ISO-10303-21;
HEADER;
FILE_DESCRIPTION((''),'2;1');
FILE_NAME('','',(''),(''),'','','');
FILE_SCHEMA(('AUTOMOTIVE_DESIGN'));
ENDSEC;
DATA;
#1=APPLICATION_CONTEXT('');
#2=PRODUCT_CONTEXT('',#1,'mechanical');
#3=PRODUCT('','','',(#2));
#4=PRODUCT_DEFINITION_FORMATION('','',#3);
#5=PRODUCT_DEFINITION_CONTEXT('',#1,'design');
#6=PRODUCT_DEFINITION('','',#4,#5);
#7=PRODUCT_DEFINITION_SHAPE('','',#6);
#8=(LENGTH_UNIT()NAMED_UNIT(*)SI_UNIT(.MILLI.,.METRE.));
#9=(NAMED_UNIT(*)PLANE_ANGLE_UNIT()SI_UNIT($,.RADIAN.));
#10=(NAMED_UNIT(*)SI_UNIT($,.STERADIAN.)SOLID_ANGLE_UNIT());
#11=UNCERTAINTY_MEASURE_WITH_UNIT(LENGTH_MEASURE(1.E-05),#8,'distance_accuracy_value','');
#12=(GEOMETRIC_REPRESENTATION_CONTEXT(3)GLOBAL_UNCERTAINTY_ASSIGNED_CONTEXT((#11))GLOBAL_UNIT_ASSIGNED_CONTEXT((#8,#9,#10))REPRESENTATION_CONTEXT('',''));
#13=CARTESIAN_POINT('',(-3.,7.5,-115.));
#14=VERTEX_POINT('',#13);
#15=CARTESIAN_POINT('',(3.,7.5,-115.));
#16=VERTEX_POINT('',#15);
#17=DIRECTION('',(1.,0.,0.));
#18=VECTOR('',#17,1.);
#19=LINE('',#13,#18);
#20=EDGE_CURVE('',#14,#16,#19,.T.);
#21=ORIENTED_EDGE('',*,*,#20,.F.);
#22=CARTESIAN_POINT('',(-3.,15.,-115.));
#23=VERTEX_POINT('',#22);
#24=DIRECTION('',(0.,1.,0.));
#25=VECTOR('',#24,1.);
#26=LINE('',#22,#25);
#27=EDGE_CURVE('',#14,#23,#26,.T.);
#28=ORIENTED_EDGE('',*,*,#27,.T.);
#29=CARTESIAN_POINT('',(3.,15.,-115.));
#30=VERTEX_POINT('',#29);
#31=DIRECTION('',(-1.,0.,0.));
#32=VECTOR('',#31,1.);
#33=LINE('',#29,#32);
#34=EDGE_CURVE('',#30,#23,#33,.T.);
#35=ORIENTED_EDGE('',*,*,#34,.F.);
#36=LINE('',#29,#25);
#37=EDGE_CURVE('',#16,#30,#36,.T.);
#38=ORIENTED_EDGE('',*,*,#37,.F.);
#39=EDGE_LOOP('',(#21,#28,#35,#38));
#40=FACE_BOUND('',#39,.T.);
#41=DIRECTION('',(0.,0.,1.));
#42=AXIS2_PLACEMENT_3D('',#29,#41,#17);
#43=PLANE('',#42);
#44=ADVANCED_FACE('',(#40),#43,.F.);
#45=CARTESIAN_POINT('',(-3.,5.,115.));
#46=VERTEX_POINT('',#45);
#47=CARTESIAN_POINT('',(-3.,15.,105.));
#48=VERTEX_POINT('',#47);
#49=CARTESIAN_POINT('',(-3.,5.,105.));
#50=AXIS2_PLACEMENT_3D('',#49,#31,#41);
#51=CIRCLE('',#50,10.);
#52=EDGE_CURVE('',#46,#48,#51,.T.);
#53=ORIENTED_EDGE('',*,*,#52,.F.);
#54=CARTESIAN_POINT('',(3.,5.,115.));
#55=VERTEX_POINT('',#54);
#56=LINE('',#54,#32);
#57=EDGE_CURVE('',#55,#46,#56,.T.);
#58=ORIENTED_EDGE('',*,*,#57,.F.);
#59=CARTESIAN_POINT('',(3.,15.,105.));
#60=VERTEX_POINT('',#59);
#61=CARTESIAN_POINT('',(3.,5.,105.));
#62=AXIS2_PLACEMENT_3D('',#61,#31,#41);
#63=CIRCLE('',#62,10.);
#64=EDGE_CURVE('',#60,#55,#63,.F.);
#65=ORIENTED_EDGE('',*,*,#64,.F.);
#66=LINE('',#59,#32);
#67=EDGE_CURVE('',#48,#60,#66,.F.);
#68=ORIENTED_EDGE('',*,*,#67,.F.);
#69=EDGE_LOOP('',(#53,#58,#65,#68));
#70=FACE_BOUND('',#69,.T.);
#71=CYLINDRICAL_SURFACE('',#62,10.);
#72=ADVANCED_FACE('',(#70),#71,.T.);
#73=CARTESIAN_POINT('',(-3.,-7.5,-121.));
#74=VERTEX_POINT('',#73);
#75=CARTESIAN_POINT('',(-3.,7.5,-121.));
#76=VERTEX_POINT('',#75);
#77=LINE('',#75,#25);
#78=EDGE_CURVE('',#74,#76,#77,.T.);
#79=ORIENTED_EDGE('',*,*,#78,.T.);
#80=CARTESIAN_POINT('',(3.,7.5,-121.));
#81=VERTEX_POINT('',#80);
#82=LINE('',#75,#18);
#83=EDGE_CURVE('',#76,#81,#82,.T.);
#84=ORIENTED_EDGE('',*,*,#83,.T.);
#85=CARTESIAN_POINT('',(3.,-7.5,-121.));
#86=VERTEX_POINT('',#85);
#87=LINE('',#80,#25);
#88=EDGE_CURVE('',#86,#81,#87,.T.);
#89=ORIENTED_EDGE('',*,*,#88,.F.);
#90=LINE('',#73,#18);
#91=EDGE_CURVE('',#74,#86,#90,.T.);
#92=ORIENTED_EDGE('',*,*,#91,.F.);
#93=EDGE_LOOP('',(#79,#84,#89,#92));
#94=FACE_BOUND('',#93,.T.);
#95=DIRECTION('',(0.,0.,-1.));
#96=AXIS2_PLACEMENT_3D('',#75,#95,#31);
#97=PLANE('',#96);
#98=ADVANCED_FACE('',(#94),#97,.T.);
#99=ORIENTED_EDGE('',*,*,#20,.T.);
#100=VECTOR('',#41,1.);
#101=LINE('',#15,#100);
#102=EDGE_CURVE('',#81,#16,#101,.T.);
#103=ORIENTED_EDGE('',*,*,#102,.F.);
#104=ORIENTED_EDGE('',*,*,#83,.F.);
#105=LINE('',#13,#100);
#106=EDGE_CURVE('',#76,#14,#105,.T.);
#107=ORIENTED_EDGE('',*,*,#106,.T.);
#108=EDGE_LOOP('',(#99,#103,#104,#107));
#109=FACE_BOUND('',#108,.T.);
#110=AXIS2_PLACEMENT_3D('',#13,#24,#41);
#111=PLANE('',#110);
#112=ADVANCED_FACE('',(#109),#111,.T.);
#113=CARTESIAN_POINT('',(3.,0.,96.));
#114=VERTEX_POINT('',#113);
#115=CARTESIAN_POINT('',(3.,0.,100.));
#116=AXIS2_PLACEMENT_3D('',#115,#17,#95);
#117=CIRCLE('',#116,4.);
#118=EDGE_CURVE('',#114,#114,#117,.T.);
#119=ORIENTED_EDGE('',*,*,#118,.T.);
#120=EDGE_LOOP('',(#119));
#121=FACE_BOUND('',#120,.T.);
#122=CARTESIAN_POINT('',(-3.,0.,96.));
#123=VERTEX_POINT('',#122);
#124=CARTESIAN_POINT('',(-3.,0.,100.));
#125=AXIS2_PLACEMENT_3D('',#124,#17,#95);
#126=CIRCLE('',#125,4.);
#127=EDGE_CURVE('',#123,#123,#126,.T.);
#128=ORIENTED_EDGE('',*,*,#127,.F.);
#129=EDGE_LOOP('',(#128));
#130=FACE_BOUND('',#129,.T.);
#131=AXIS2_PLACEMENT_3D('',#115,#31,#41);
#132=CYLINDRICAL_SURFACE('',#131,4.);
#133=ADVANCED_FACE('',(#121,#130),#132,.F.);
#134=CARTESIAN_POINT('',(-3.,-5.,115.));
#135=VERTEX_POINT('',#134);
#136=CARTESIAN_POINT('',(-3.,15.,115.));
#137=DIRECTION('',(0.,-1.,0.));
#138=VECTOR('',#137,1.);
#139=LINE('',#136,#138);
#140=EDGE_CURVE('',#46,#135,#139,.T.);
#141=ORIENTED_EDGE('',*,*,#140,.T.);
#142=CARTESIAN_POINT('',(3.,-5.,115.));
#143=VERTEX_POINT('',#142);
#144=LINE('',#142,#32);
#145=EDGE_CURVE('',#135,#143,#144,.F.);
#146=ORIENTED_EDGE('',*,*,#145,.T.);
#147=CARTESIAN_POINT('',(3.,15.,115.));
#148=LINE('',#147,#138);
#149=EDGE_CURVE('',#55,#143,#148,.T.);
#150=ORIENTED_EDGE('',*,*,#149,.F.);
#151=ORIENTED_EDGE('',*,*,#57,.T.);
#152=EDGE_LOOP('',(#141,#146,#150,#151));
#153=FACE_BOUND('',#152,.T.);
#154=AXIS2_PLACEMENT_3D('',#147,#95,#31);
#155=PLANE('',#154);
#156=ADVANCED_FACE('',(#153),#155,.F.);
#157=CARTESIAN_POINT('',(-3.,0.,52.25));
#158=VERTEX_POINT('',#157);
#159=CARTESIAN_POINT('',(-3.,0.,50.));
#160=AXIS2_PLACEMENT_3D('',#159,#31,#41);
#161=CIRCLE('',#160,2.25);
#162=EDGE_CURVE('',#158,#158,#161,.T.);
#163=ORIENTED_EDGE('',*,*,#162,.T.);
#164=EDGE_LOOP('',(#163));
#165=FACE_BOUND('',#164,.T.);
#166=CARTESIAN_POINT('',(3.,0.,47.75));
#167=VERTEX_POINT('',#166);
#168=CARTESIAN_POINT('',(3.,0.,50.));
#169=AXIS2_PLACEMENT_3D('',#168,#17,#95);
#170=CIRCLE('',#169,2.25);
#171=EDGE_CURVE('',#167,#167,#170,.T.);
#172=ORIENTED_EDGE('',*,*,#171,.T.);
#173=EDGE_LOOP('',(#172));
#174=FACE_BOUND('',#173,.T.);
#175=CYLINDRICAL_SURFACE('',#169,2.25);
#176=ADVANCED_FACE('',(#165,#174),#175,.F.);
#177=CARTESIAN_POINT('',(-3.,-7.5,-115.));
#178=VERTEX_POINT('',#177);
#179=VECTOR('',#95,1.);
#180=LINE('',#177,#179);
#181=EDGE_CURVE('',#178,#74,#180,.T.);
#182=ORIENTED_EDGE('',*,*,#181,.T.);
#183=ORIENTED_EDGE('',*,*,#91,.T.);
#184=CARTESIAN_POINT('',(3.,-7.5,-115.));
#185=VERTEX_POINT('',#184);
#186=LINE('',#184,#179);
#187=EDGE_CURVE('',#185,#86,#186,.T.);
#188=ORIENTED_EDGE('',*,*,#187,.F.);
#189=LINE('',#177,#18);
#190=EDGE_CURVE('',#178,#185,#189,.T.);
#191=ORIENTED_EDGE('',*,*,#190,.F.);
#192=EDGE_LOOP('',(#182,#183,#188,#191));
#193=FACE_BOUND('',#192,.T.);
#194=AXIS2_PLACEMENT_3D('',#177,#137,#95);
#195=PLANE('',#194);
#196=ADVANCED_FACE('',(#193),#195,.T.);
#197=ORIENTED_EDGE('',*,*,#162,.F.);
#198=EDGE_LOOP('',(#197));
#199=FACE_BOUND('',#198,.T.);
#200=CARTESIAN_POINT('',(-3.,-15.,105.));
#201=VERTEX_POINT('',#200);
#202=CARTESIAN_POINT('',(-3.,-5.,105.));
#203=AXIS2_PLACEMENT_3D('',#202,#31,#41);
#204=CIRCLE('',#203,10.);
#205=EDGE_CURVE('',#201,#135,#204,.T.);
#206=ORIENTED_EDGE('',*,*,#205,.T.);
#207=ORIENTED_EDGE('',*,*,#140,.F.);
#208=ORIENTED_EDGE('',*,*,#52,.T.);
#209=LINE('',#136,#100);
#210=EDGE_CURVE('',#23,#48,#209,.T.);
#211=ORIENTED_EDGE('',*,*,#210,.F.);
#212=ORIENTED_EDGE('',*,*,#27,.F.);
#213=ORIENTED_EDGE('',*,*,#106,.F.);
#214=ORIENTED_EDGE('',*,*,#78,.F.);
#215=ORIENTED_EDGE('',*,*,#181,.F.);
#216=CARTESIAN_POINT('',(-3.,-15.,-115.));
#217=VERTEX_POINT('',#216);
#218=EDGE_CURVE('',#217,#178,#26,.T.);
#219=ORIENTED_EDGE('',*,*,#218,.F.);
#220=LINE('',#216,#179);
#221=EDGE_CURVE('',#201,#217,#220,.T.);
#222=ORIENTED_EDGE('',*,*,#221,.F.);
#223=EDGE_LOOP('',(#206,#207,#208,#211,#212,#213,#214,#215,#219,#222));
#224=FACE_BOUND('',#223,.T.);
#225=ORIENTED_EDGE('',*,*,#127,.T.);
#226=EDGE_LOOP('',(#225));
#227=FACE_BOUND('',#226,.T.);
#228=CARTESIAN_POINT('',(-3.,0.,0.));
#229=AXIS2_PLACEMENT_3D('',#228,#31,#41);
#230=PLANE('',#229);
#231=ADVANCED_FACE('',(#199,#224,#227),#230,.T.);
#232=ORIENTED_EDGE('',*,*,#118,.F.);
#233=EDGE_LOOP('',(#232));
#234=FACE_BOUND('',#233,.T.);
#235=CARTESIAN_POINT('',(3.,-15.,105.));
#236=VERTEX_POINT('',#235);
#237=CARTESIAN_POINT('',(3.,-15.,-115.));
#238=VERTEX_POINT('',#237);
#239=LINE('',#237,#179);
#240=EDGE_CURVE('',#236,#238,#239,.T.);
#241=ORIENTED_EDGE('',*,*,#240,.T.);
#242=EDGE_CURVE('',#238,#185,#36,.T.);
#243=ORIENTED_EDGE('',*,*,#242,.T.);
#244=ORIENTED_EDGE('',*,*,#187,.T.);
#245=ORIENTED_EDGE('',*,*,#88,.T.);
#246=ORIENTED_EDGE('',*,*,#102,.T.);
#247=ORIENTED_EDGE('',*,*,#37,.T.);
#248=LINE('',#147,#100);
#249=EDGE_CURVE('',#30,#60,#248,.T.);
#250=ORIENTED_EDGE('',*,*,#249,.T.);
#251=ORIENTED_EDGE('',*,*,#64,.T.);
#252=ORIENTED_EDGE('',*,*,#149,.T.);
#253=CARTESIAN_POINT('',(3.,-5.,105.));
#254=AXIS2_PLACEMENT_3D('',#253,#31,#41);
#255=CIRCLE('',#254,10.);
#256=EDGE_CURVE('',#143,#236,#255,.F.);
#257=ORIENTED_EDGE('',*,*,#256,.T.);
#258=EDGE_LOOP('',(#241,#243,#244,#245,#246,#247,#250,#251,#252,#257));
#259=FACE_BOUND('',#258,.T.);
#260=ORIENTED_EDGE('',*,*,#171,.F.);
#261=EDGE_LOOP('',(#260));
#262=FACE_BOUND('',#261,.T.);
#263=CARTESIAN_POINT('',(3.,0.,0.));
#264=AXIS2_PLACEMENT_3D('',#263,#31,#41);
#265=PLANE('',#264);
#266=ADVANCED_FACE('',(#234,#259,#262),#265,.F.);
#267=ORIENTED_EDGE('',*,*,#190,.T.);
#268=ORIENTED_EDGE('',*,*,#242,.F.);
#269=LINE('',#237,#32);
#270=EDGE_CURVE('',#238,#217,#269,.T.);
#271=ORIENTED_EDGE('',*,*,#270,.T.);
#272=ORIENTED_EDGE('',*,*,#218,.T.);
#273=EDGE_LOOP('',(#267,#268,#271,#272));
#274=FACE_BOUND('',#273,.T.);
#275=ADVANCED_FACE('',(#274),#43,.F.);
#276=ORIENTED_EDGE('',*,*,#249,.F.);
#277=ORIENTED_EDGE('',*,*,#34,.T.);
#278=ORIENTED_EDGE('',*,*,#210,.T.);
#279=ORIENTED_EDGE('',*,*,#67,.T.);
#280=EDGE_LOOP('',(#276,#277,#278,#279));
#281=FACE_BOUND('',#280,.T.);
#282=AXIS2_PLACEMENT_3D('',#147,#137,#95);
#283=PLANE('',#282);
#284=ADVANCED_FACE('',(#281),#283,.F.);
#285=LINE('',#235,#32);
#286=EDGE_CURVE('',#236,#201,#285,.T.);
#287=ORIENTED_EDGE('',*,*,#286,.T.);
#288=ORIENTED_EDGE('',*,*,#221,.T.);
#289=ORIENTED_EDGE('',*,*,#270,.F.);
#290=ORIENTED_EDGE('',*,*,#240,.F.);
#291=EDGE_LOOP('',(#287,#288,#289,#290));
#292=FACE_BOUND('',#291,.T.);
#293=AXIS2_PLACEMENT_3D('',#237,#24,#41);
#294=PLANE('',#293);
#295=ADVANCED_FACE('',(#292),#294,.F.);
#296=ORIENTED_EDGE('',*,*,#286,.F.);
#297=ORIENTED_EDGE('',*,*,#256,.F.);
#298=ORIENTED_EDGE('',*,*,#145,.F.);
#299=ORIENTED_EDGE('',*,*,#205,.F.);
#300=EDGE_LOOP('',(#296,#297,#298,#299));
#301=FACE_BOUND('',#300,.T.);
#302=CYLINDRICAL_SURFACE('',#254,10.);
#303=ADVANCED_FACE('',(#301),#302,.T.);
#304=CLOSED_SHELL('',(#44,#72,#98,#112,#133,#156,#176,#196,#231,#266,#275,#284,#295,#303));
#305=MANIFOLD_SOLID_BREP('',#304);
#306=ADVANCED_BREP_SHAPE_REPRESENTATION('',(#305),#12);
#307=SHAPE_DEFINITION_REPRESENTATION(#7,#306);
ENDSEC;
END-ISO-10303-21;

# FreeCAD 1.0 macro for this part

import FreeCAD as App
import Part
import Sketcher

V = App.Vector
Q = App.Units.Quantity


def edges_at(feature, points):
    """Names of the edges that pass closest to the given points."""
    edges = feature.Shape.Edges
    near = lambda p: min(range(len(edges)), key=lambda i: edges[i].distToShape(Part.Vertex(*p))[0])
    return sorted({f"Edge{near(p) + 1}" for p in points})


def add_polygon(sketch, points):
    """Adds a closed chain of lines whose ends are joined by coincident constraints."""
    first, n = sketch.GeometryCount, len(points)
    for a, b in zip(points, points[1:] + points[:1]):
        sketch.addGeometry(Part.LineSegment(App.Vector(*a, 0), App.Vector(*b, 0)), False)
    for i in range(n):
        sketch.addConstraint(Sketcher.Constraint("Coincident", first + i, 2, first + (i + 1) % n, 1))

doc = App.newDocument("Part")
params = doc.addObject("Spreadsheet::Sheet", "Params")
for row, (alias, value) in enumerate([
    ("sketch1_diameter", "8 mm"),
    ("sketch1_width", "30 mm"),
    ("sketch1_height", "230 mm"),
    ("pad1_length", "6 mm"),
    ("sketch2_diameter", "4.5 mm"),
    ("hole_diameter", "4.5 mm"),
    ("fillet_radius", "10 mm"),
    ("sketch3_width", "15 mm"),
    ("sketch3_height", "6 mm"),
    ("pad2_length", "6 mm"),
], start=1):
    params.set(f"A{row}", alias)
    params.set(f"B{row}", "=" + value)
    params.setAlias(f"B{row}", alias)

body = doc.addObject("PartDesign::Body", "Body")

sketch1 = body.newObject("Sketcher::SketchObject", "Sketch")
sketch1.AttachmentSupport = (doc.getObject("YZ_Plane"), [""])
sketch1.MapMode = "FlatFace"
add_polygon(sketch1, [(15, 115), (-15, 115), (-15, -115), (15, -115)])
sketch1.addGeometry(Part.Circle(V(0, 100, 0), V(0, 0, 1), 4), False)
sketch1.addConstraint([
    Sketcher.Constraint("Horizontal", 0),
    Sketcher.Constraint("Vertical", 1),
    Sketcher.Constraint("Horizontal", 2),
    Sketcher.Constraint("Vertical", 3),
    Sketcher.Constraint("Symmetric", 0, 2, 2, 2, -1, 1),
    Sketcher.Constraint("PointOnObject", 4, 3, -2),
    Sketcher.Constraint("Diameter", 4, Q("8 mm")),
    Sketcher.Constraint("DistanceX", 0, 2, 0, 1, Q("30 mm")),
    Sketcher.Constraint("DistanceY", 1, 2, 1, 1, Q("230 mm")),
    Sketcher.Constraint("DistanceY", -1, 1, 4, 3, Q("100 mm")),
])
sketch1.setExpression("Constraints[10]", "Params.sketch1_diameter")
sketch1.setExpression("Constraints[11]", "Params.sketch1_width")
sketch1.setExpression("Constraints[12]", "Params.sketch1_height")
pad1 = body.newObject("PartDesign::Pad", "Pad")
pad1.Profile = sketch1
pad1.setExpression("Length", "Params.pad1_length")
pad1.Midplane = True

sketch2 = body.newObject("Sketcher::SketchObject", "Sketch001")
sketch2.AttachmentSupport = (doc.getObject("YZ_Plane"), [""])
sketch2.MapMode = "FlatFace"
sketch2.AttachmentOffset = App.Placement(V(0, 0, 3), App.Rotation())
sketch2.addGeometry(Part.Circle(V(0, 50, 0), V(0, 0, 1), 2.2), False)
sketch2.addConstraint([
    Sketcher.Constraint("PointOnObject", 0, 3, -2),
    Sketcher.Constraint("Diameter", 0, Q("4.5 mm")),
    Sketcher.Constraint("DistanceY", -1, 1, 0, 3, Q("50 mm")),
])
sketch2.setExpression("Constraints[1]", "Params.sketch2_diameter")
doc.recompute()
hole = body.newObject("PartDesign::Hole", "Hole")
hole.Profile = sketch2
hole.ThreadType = "None"
hole.setExpression("Diameter", "Params.hole_diameter")
hole.DepthType = "ThroughAll"
doc.recompute()

fillet = body.newObject("PartDesign::Fillet", "Fillet")
fillet.Base = (hole, edges_at(hole, [(0, 15, 115), (0, -15, 115)]))
fillet.setExpression("Radius", "Params.fillet_radius")

sketch3 = body.newObject("Sketcher::SketchObject", "Sketch002")
sketch3.AttachmentSupport = (doc.getObject("YZ_Plane"), [""])
sketch3.MapMode = "FlatFace"
sketch3.AttachmentOffset = App.Placement(V(0, 0, 3), App.Rotation())
add_polygon(sketch3, [(8, -115), (-8, -115), (-8, -121), (8, -121)])
sketch3.addConstraint([
    Sketcher.Constraint("Horizontal", 0),
    Sketcher.Constraint("Vertical", 1),
    Sketcher.Constraint("Horizontal", 2),
    Sketcher.Constraint("Vertical", 3),
    Sketcher.Constraint("DistanceX", 0, 2, 0, 1, Q("15 mm")),
    Sketcher.Constraint("DistanceY", 1, 2, 1, 1, Q("6 mm")),
    Sketcher.Constraint("DistanceY", 0, 2, -1, 1, Q("115 mm")),
    Sketcher.Constraint("DistanceX", 0, 2, -1, 1, Q("7.5 mm")),
])
sketch3.setExpression("Constraints[8]", "Params.sketch3_width")
sketch3.setExpression("Constraints[9]", "Params.sketch3_height")
pad2 = body.newObject("PartDesign::Pad", "Pad001")
pad2.Profile = sketch3
pad2.setExpression("Length", "Params.pad2_length")
pad2.Reversed = True

doc.recompute()
